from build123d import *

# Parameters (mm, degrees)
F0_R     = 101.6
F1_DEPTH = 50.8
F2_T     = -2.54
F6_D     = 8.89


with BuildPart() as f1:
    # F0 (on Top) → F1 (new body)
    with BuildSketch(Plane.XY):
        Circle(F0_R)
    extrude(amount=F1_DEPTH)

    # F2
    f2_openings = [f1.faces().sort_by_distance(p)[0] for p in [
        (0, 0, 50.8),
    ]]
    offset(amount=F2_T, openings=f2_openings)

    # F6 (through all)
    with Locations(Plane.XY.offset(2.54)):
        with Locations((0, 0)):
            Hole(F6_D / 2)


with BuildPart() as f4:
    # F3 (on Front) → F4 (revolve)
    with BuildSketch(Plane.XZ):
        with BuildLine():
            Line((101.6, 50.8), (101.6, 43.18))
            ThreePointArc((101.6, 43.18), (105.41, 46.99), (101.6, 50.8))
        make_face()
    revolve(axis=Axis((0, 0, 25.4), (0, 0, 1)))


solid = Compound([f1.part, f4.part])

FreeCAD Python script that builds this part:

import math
import FreeCAD as App
import Part
import Sketcher

V = App.Vector
Q = App.Units.Quantity


def faces_at(feature, points):
    """Names of the faces that lie closest to the given points."""
    faces = feature.Shape.Faces
    near = lambda p: min(range(len(faces)), key=lambda i: faces[i].distToShape(Part.Vertex(*p))[0])
    return sorted({f"Face{near(p) + 1}" for p in points})

doc = App.newDocument("Part")
body = doc.addObject("PartDesign::Body", "Body")

# Sketch on XY plane
sketch1 = body.newObject("Sketcher::SketchObject", "Sketch")
sketch1.AttachmentSupport = (doc.getObject("XY_Plane"), [""])
sketch1.MapMode = "FlatFace"
sketch1.addGeometry(Part.Circle(V(0, 0, 0), V(0, 0, 1), 102), False)
sketch1.addConstraint([
    Sketcher.Constraint("Coincident", 0, 3, -1, 1),
    Sketcher.Constraint("Diameter", 0, Q("8 in")),
])
pad1 = body.newObject("PartDesign::Pad", "Pad")
pad1.Profile = sketch1
pad1.Length = Q("2 in")
doc.recompute()

thickness = body.newObject("PartDesign::Thickness", "Thickness")
thickness.Base = (pad1, faces_at(pad1, [(0, 0, 50.8)]))
thickness.Value = Q("0.1 in")
thickness.Reversed = True
thickness.Join = "Arc"

# Sketch on XY plane
sketch2 = body.newObject("Sketcher::SketchObject", "Sketch001")
sketch2.AttachmentSupport = (doc.getObject("XY_Plane"), [""])
sketch2.MapMode = "FlatFace"
sketch2.AttachmentOffset = App.Placement(V(0, 0, 0.1 * 25.4), App.Rotation())
sketch2.addGeometry(Part.Circle(V(0, 0, 0), V(0, 0, 1), 4.4), False)
sketch2.addConstraint([
    Sketcher.Constraint("Coincident", 0, 3, -1, 1),
    Sketcher.Constraint("Diameter", 0, Q("0.35 in")),
])
doc.recompute()
hole = body.newObject("PartDesign::Hole", "Hole")
hole.Profile = sketch2
hole.ThreadType = "None"
hole.Diameter = Q("0.35 in")
hole.DepthType = "ThroughAll"
body2 = doc.addObject("PartDesign::Body", "Body001")

# Sketch on XZ plane
sketch3 = body2.newObject("Sketcher::SketchObject", "Sketch002")
sketch3.AttachmentSupport = (doc.getObject("XZ_Plane001"), [""])
sketch3.MapMode = "FlatFace"
sketch3.addGeometry([
    Part.LineSegment(V(101.6, 50.8, 0), V(101.6, 43.2, 0)),
    Part.ArcOfCircle(Part.Circle(V(101.6, 47, 0), V(0, 0, 1), 3.8), math.radians(-90), math.radians(90)),
], False)
sketch3.addConstraint([
    Sketcher.Constraint("Coincident", 0, 1, 1, 2),
    Sketcher.Constraint("Coincident", 1, 1, 0, 2),
    Sketcher.Constraint("Vertical", 0),
    Sketcher.Constraint("Vertical", 1, 3, 0, 1),
    Sketcher.Constraint("Radius", 1, Q("0.15 in")),
    Sketcher.Constraint("DistanceX", -1, 1, 1, 3, Q("4 in")),
    Sketcher.Constraint("DistanceY", -1, 1, 0, 1, Q("2 in")),
])
revolution = body2.newObject("PartDesign::Revolution", "Revolution")
revolution.Profile = sketch3
revolution.ReferenceAxis = (sketch3, ["V_Axis"])
revolution.Angle = 360

doc.recompute()
